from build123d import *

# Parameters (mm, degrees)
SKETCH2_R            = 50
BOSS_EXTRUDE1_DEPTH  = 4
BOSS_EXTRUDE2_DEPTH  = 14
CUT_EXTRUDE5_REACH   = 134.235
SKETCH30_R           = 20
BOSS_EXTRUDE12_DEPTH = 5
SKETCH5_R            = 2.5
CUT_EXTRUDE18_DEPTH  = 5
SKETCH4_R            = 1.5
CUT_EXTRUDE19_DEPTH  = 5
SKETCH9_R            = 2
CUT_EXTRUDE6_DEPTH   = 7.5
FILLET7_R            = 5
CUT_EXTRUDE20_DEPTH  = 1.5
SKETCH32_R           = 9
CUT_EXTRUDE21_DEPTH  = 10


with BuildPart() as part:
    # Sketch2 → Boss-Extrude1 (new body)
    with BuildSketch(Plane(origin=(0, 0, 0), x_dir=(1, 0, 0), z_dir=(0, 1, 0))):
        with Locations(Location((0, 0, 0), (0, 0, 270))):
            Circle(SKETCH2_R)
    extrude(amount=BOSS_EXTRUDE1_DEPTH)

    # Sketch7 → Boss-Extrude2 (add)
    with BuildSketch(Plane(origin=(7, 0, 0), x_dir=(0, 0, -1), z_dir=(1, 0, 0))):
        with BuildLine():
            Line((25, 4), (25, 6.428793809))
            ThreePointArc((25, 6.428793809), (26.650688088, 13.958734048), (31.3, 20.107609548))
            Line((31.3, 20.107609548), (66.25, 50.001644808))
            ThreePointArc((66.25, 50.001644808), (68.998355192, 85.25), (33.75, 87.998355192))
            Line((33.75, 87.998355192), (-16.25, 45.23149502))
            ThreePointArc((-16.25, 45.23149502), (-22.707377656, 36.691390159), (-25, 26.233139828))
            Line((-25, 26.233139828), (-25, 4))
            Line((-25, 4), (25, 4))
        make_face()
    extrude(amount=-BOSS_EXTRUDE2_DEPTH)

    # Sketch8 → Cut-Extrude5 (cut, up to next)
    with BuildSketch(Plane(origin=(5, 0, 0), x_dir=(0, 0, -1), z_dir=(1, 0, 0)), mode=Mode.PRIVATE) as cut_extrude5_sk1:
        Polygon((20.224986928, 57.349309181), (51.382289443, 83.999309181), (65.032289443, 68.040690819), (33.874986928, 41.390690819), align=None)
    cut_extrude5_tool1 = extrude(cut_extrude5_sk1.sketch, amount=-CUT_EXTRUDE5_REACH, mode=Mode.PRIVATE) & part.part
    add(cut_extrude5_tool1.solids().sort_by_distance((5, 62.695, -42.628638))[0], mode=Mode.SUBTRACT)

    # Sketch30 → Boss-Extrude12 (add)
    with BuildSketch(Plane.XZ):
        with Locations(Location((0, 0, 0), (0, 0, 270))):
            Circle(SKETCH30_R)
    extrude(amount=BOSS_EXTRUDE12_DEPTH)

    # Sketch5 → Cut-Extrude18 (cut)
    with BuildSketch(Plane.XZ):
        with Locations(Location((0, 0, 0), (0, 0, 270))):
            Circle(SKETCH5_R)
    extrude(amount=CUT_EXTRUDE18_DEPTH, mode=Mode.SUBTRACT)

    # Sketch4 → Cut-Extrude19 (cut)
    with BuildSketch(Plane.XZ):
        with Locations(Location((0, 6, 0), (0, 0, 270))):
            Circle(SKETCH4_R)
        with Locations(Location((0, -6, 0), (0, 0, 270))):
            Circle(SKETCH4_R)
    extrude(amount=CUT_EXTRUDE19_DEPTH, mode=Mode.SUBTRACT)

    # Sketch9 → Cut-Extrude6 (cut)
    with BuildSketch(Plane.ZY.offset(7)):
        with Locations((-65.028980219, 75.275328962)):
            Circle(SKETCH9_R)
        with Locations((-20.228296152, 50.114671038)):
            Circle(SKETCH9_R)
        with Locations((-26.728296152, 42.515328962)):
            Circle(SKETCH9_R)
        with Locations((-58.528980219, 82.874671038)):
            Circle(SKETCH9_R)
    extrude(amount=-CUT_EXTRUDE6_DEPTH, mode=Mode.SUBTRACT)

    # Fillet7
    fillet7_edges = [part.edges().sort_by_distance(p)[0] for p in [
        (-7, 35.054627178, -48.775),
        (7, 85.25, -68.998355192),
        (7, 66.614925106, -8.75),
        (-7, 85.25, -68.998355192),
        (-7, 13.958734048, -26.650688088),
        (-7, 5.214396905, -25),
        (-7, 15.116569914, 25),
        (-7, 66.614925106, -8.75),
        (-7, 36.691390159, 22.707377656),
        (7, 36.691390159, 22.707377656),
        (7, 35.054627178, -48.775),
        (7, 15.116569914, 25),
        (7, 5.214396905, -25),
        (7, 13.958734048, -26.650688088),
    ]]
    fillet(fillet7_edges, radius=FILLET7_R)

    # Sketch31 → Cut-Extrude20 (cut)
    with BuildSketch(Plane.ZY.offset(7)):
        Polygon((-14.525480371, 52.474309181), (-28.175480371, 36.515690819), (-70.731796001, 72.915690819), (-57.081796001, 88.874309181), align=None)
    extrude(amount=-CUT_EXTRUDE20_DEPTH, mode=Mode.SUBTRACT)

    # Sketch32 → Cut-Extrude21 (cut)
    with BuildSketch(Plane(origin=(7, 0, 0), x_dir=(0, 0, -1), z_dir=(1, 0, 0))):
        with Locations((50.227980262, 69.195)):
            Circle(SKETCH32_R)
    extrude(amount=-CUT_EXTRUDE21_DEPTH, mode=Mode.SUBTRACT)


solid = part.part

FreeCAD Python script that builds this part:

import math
import FreeCAD as App
import Part
import Sketcher
Q = App.Units.Quantity


def edges_at(feature, points):
    """Names of the edges that pass closest to the given points."""
    edges = feature.Shape.Edges
    near = lambda p: min(range(len(edges)), key=lambda i: edges[i].distToShape(Part.Vertex(*p))[0])
    return sorted({f"Edge{near(p) + 1}" for p in points})


def add_polygon(sketch, points):
    """Adds a closed chain of lines whose ends are joined by coincident constraints."""
    first, n = sketch.GeometryCount, len(points)
    for a, b in zip(points, points[1:] + points[:1]):
        sketch.addGeometry(Part.LineSegment(App.Vector(*a, 0), App.Vector(*b, 0)), False)
    for i in range(n):
        sketch.addConstraint(Sketcher.Constraint("Coincident", first + i, 2, first + (i + 1) % n, 1))

doc = App.newDocument("Part")
body = doc.addObject("PartDesign::Body", "Body")

# Sketch on XZ plane
sketch1 = body.newObject("Sketcher::SketchObject", "Sketch")
sketch1.AttachmentSupport = (doc.getObject("XZ_Plane"), [""])
sketch1.MapMode = "FlatFace"
sketch1.addGeometry(Part.Circle(App.Vector(0, 0, 0), App.Vector(0, 0, 1), 50), False)
sketch1.addConstraint(Sketcher.Constraint("Coincident", 0, 3, -1, 1))
sketch1.addConstraint(Sketcher.Constraint("Diameter", 0, Q("100 mm")))
pad1 = body.newObject("PartDesign::Pad", "Pad")
pad1.Profile = sketch1
pad1.Length = 4
pad1.Reversed = True

# Sketch on YZ plane
sketch2 = body.newObject("Sketcher::SketchObject", "Sketch001")
sketch2.AttachmentSupport = (doc.getObject("YZ_Plane"), [""])
sketch2.MapMode = "FlatFace"
sketch2.AttachmentOffset = App.Placement(App.Vector(0, 0, 7), App.Rotation())
sketch2.addGeometry(Part.LineSegment(App.Vector(4, -25, 0), App.Vector(6.4, -25, 0)), False)
sketch2.addGeometry(Part.ArcOfCircle(Part.Circle(App.Vector(6.4, -43, 0), App.Vector(0, 0, 1), 18), math.radians(41), math.radians(90)), False)
sketch2.addGeometry(Part.LineSegment(App.Vector(20.1, -31.3, 0), App.Vector(50, -66.2, 0)), False)
sketch2.addGeometry(Part.ArcOfCircle(Part.Circle(App.Vector(69, -50, 0), App.Vector(0, 0, 1), 25), math.radians(-139), math.radians(41)), False)
sketch2.addGeometry(Part.LineSegment(App.Vector(88, -33.8, 0), App.Vector(45.2, 16.2, 0)), False)
sketch2.addGeometry(Part.ArcOfCircle(Part.Circle(App.Vector(26.2, 0, 0), App.Vector(0, 0, 1), 25), math.radians(41), math.radians(90)), False)
sketch2.addGeometry(Part.LineSegment(App.Vector(26.2, 25, 0), App.Vector(4, 25, 0)), False)
sketch2.addGeometry(Part.LineSegment(App.Vector(4, 25, 0), App.Vector(4, -25, 0)), False)
sketch2.addConstraint(Sketcher.Constraint("Tangent", 0, 2, 1, 2))
sketch2.addConstraint(Sketcher.Constraint("Tangent", 1, 1, 2, 1))
sketch2.addConstraint(Sketcher.Constraint("Tangent", 2, 2, 3, 1))
sketch2.addConstraint(Sketcher.Constraint("Tangent", 3, 2, 4, 1))
sketch2.addConstraint(Sketcher.Constraint("Tangent", 4, 2, 5, 1))
sketch2.addConstraint(Sketcher.Constraint("Tangent", 5, 2, 6, 1))
sketch2.addConstraint(Sketcher.Constraint("Coincident", 6, 2, 7, 1))
sketch2.addConstraint(Sketcher.Constraint("Coincident", 7, 2, 0, 1))
sketch2.addConstraint(Sketcher.Constraint("Horizontal", 0))
sketch2.addConstraint(Sketcher.Constraint("Horizontal", 6))
sketch2.addConstraint(Sketcher.Constraint("Vertical", 7))
sketch2.addConstraint(Sketcher.Constraint("Equal", 3, 5))
sketch2.addConstraint(Sketcher.Constraint("PointOnObject", 5, 3, -1))
sketch2.addConstraint(Sketcher.Constraint("Parallel", 2, 4))
sketch2.addConstraint(Sketcher.Constraint("Radius", 1, Q("18 mm")))
sketch2.addConstraint(Sketcher.Constraint("Radius", 3, Q("25 mm")))
sketch2.addConstraint(Sketcher.Constraint("DistanceY", 7, 2, 7, 1, Q("50 mm")))
sketch2.addConstraint(Sketcher.Constraint("DistanceX", -1, 1, 3, 3, Q("69 mm")))
sketch2.addConstraint(Sketcher.Constraint("DistanceY", 3, 3, -1, 1, Q("50 mm")))
sketch2.addConstraint(Sketcher.Constraint("DistanceX", -1, 1, 6, 2, Q("4 mm")))
sketch2.addConstraint(Sketcher.Constraint("DistanceY", 1, 1, -1, 1, Q("31.3 mm")))
pad2 = body.newObject("PartDesign::Pad", "Pad001")
pad2.Profile = sketch2
pad2.Length = 14
pad2.Reversed = True

# Sketch on YZ plane
sketch3 = body.newObject("Sketcher::SketchObject", "Sketch002")
sketch3.AttachmentSupport = (doc.getObject("YZ_Plane"), [""])
sketch3.MapMode = "FlatFace"
sketch3.AttachmentOffset = App.Placement(App.Vector(0, 0, 5), App.Rotation())
add_polygon(sketch3, [(84, -51), (57, -20), (41, -34), (68, -65)])  # lines 0-3
sketch3.addConstraint(Sketcher.Constraint("Perpendicular", 0, 1))
sketch3.addConstraint(Sketcher.Constraint("Perpendicular", 1, 2))
sketch3.addConstraint(Sketcher.Constraint("Perpendicular", 2, 3))
sketch3.addConstraint(Sketcher.Constraint("Distance", 0, Q("41 mm")))
sketch3.addConstraint(Sketcher.Constraint("Distance", 1, Q("21 mm")))
sketch3.addConstraint(Sketcher.Constraint("DistanceY", 1, 2, 0, 2, Q("13.65 mm")))
sketch3.addConstraint(Sketcher.Constraint("DistanceX", -1, 1, 0, 2, Q("57.349309 mm")))
sketch3.addConstraint(Sketcher.Constraint("DistanceY", 2, 2, -1, 1, Q("65.032289 mm")))
pocket1 = body.newObject("PartDesign::Pocket", "Pocket")
pocket1.Profile = sketch3
pocket1.Type = "UpToFirst"

# Sketch on XZ plane
sketch4 = body.newObject("Sketcher::SketchObject", "Sketch003")
sketch4.AttachmentSupport = (doc.getObject("XZ_Plane"), [""])
sketch4.MapMode = "FlatFace"
sketch4.addGeometry(Part.Circle(App.Vector(0, 0, 0), App.Vector(0, 0, 1), 20), False)
sketch4.addConstraint(Sketcher.Constraint("Coincident", 0, 3, -1, 1))
sketch4.addConstraint(Sketcher.Constraint("Diameter", 0, Q("40 mm")))
pad3 = body.newObject("PartDesign::Pad", "Pad002")
pad3.Profile = sketch4
pad3.Length = 5

# Sketch on XZ plane
sketch5 = body.newObject("Sketcher::SketchObject", "Sketch004")
sketch5.AttachmentSupport = (doc.getObject("XZ_Plane"), [""])
sketch5.MapMode = "FlatFace"
sketch5.addGeometry(Part.Circle(App.Vector(0, 0, 0), App.Vector(0, 0, 1), 2.5), False)
sketch5.addConstraint(Sketcher.Constraint("Coincident", 0, 3, -1, 1))
sketch5.addConstraint(Sketcher.Constraint("Diameter", 0, Q("5 mm")))
pocket2 = body.newObject("PartDesign::Pocket", "Pocket001")
pocket2.Profile = sketch5
pocket2.Length = 5
pocket2.Reversed = True

# Sketch on XZ plane
sketch6 = body.newObject("Sketcher::SketchObject", "Sketch005")
sketch6.AttachmentSupport = (doc.getObject("XZ_Plane"), [""])
sketch6.MapMode = "FlatFace"
sketch6.addGeometry(Part.Circle(App.Vector(0, 6, 0), App.Vector(0, 0, 1), 1.5), False)
sketch6.addGeometry(Part.Circle(App.Vector(0, -6, 0), App.Vector(0, 0, 1), 1.5), False)
sketch6.addConstraint(Sketcher.Constraint("Equal", 0, 1))
sketch6.addConstraint(Sketcher.Constraint("Symmetric", 0, 3, 1, 3, -1, 1))
sketch6.addConstraint(Sketcher.Constraint("PointOnObject", 0, 3, -2))
sketch6.addConstraint(Sketcher.Constraint("Diameter", 0, Q("3 mm")))
sketch6.addConstraint(Sketcher.Constraint("DistanceY", -1, 1, 0, 3, Q("6 mm")))
pocket3 = body.newObject("PartDesign::Pocket", "Pocket002")
pocket3.Profile = sketch6
pocket3.Length = 5
pocket3.Reversed = True

# Sketch on YZ plane
sketch7 = body.newObject("Sketcher::SketchObject", "Sketch006")
sketch7.AttachmentSupport = (doc.getObject("YZ_Plane"), [""])
sketch7.MapMode = "FlatFace"
sketch7.AttachmentOffset = App.Placement(App.Vector(0, 0, -7), App.Rotation())
sketch7.addGeometry(Part.Circle(App.Vector(75.3, -65, 0), App.Vector(0, 0, 1), 2), False)
sketch7.addGeometry(Part.Circle(App.Vector(50.1, -20.2, 0), App.Vector(0, 0, 1), 2), False)
sketch7.addGeometry(Part.Circle(App.Vector(42.5, -26.7, 0), App.Vector(0, 0, 1), 2), False)
sketch7.addGeometry(Part.Circle(App.Vector(82.9, -58.5, 0), App.Vector(0, 0, 1), 2), False)
sketch7.addConstraint(Sketcher.Constraint("Equal", 0, 1))
sketch7.addConstraint(Sketcher.Constraint("Equal", 1, 2))
sketch7.addConstraint(Sketcher.Constraint("Equal", 2, 3))
sketch7.addConstraint(Sketcher.Constraint("Diameter", 0, Q("4 mm")))
sketch7.addConstraint(Sketcher.Constraint("DistanceY", 2, 3, 1, 3, Q("6.5 mm")))
sketch7.addConstraint(Sketcher.Constraint("DistanceY", 0, 3, 3, 3, Q("6.5 mm")))
sketch7.addConstraint(Sketcher.Constraint("DistanceX", 2, 3, 0, 3, Q("32.76 mm")))
sketch7.addConstraint(Sketcher.Constraint("DistanceX", 1, 3, 3, 3, Q("32.76 mm")))
sketch7.addConstraint(Sketcher.Constraint("DistanceX", -1, 1, 0, 3, Q("75.275329 mm")))
sketch7.addConstraint(Sketcher.Constraint("DistanceY", 0, 3, -1, 1, Q("65.02898 mm")))
sketch7.addConstraint(Sketcher.Constraint("DistanceX", -1, 1, 1, 3, Q("50.114671 mm")))
sketch7.addConstraint(Sketcher.Constraint("DistanceY", 1, 3, -1, 1, Q("20.228296 mm")))
pocket4 = body.newObject("PartDesign::Pocket", "Pocket003")
pocket4.Profile = sketch7
pocket4.Length = 7.5
pocket4.Reversed = True
doc.recompute()

fillet = body.newObject("PartDesign::Fillet", "Fillet")
fillet.Base = (pocket4, edges_at(pocket4, [
    (-7, 35.055, -48.775),
    (7, 85.25, -68.998),
    (7, 66.615, -8.75),
    (-7, 85.25, -68.998),
    (-7, 13.959, -26.651),
    (-7, 5.214, -25),
    (-7, 15.117, 25),
    (-7, 66.615, -8.75),
    (-7, 36.691, 22.707),
    (7, 36.691, 22.707),
    (7, 35.055, -48.775),
    (7, 15.117, 25),
    (7, 5.214, -25),
    (7, 13.959, -26.651),
]))
fillet.Radius = 5

# Sketch on YZ plane
sketch8 = body.newObject("Sketcher::SketchObject", "Sketch007")
sketch8.AttachmentSupport = (doc.getObject("YZ_Plane"), [""])
sketch8.MapMode = "FlatFace"
sketch8.AttachmentOffset = App.Placement(App.Vector(0, 0, -7), App.Rotation())
add_polygon(sketch8, [(37, -28), (52, -15), (89, -57), (73, -71)])  # lines 0-3
sketch8.addConstraint(Sketcher.Constraint("Perpendicular", 0, 1))
sketch8.addConstraint(Sketcher.Constraint("Perpendicular", 1, 2))
sketch8.addConstraint(Sketcher.Constraint("Perpendicular", 2, 3))
sketch8.addConstraint(Sketcher.Constraint("Distance", 0, Q("21 mm")))
sketch8.addConstraint(Sketcher.Constraint("Distance", 1, Q("56 mm")))
sketch8.addConstraint(Sketcher.Constraint("DistanceX", 0, 2, 1, 2, Q("36.4 mm")))
sketch8.addConstraint(Sketcher.Constraint("DistanceX", -1, 1, 0, 2, Q("52.474309 mm")))
sketch8.addConstraint(Sketcher.Constraint("DistanceY", 0, 2, -1, 1, Q("14.52548 mm")))
pocket5 = body.newObject("PartDesign::Pocket", "Pocket004")
pocket5.Profile = sketch8
pocket5.Length = 1.5
pocket5.Reversed = True

# Sketch on YZ plane
sketch9 = body.newObject("Sketcher::SketchObject", "Sketch008")
sketch9.AttachmentSupport = (doc.getObject("YZ_Plane"), [""])
sketch9.MapMode = "FlatFace"
sketch9.AttachmentOffset = App.Placement(App.Vector(0, 0, 7), App.Rotation())
sketch9.addGeometry(Part.Circle(App.Vector(69, -50, 0), App.Vector(0, 0, 1), 9), False)
sketch9.addConstraint(Sketcher.Constraint("Diameter", 0, Q("18 mm")))
sketch9.addConstraint(Sketcher.Constraint("DistanceX", -1, 1, 0, 3, Q("69.195 mm")))
sketch9.addConstraint(Sketcher.Constraint("DistanceY", 0, 3, -1, 1, Q("50.22798 mm")))
pocket6 = body.newObject("PartDesign::Pocket", "Pocket005")
pocket6.Profile = sketch9
pocket6.Length = 10

doc.recompute()
